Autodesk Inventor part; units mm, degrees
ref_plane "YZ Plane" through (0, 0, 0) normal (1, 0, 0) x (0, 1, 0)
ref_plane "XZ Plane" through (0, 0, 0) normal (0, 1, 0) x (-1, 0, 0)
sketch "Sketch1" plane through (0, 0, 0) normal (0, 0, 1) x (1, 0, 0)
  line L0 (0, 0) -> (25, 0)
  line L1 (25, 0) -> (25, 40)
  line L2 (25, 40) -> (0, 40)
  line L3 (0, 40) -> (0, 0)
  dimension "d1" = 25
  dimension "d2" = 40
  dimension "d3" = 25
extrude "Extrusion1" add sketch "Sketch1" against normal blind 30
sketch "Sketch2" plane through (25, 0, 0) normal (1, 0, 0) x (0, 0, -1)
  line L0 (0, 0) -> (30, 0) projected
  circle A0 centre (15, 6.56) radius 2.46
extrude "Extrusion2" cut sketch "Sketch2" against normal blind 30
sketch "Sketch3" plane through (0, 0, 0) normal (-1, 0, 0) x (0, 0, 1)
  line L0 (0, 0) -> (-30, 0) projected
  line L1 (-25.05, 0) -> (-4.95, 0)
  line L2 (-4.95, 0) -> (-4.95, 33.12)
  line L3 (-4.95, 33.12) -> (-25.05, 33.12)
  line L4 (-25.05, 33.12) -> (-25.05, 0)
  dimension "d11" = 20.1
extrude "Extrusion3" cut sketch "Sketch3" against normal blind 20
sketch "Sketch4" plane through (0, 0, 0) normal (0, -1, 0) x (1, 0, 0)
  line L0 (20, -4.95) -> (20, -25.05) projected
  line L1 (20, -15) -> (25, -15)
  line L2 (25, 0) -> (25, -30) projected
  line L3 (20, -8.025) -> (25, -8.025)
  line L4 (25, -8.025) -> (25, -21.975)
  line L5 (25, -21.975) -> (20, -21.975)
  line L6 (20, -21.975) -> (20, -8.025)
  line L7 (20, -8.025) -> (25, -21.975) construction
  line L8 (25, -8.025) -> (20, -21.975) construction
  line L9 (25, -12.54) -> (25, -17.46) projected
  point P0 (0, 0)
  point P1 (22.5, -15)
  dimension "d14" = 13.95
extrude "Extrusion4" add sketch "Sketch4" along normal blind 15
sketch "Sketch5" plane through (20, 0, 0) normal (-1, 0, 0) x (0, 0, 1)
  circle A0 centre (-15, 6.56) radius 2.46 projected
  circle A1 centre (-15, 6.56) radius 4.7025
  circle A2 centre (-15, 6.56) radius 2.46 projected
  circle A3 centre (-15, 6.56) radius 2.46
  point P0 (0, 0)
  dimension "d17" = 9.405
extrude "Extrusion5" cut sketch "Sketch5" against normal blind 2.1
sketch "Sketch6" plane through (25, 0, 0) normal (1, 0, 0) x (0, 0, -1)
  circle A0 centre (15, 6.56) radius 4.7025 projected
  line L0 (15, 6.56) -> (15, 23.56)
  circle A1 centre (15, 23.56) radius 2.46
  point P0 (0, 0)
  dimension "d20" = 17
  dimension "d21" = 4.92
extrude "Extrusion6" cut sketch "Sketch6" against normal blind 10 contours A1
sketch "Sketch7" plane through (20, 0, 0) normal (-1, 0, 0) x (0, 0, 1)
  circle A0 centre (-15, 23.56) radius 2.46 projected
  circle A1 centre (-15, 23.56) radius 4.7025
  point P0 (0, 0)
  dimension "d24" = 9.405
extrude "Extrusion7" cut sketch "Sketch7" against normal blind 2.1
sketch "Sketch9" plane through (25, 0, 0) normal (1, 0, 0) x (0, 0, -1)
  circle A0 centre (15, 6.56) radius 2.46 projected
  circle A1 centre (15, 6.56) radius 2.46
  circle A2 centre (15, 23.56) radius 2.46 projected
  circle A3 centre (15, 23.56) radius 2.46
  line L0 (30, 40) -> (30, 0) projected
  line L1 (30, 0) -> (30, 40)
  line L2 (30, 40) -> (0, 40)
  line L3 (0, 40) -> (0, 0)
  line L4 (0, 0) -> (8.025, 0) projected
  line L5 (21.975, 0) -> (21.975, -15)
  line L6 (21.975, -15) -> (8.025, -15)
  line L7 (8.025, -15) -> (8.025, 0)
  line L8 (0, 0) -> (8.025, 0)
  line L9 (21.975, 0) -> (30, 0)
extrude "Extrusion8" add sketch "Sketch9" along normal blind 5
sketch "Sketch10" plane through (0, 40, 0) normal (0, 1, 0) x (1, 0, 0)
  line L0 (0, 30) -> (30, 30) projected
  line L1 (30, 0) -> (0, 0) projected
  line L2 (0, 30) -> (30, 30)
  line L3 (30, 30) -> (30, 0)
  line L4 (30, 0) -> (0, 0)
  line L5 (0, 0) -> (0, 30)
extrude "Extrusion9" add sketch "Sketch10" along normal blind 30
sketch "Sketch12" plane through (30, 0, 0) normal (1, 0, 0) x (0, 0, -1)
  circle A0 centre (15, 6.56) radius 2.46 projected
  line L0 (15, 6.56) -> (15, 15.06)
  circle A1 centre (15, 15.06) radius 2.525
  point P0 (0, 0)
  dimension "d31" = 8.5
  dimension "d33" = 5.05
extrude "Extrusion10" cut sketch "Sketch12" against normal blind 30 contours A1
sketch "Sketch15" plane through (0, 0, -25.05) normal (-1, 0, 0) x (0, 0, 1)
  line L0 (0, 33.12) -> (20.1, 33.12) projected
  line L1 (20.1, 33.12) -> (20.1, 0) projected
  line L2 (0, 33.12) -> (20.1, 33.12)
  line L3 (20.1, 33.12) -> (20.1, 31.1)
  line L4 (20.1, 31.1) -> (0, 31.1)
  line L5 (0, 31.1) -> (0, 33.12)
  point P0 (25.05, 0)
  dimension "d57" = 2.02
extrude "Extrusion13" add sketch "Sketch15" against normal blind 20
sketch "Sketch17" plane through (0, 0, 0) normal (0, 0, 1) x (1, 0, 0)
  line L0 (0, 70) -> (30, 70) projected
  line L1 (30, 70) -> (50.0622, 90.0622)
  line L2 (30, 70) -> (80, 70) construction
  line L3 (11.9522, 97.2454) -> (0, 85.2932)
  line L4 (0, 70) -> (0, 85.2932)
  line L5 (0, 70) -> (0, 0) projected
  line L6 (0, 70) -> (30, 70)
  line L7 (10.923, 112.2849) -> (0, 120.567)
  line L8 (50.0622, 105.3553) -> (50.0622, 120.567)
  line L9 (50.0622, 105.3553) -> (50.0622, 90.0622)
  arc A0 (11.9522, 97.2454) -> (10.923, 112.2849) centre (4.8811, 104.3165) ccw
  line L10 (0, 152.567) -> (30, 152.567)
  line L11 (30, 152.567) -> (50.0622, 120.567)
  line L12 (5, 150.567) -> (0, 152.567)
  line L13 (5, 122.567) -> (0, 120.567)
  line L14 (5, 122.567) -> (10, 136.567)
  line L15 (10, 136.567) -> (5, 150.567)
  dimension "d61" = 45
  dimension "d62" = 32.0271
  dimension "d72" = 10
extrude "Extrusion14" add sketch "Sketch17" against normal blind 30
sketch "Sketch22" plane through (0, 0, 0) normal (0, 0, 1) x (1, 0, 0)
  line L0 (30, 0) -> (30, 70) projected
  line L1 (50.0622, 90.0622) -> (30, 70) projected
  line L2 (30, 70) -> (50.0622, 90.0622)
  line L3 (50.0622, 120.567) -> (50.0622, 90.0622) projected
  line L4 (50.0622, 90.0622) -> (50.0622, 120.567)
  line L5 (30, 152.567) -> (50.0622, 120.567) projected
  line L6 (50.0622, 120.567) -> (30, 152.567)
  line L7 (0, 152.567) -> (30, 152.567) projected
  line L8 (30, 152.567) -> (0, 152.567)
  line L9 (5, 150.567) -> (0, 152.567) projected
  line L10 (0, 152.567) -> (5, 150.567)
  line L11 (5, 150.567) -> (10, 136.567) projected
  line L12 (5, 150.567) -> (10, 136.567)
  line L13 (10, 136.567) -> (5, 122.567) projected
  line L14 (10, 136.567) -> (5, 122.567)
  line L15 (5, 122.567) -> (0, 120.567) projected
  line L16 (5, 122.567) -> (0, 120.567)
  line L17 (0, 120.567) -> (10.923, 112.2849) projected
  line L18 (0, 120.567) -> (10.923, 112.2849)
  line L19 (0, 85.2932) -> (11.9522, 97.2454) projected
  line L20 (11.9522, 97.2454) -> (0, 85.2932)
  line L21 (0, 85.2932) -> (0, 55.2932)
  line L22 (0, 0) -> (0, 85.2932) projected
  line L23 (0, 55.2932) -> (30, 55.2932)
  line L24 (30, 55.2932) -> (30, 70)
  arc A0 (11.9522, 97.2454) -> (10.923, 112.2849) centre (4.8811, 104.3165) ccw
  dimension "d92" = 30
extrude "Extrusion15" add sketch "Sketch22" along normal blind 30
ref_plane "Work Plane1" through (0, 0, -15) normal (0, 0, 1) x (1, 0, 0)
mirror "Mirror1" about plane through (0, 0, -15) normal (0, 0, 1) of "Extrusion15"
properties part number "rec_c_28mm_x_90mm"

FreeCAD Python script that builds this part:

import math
import FreeCAD as App
import Part
import Sketcher
Q = App.Units.Quantity


def add_polygon(sketch, points):
    """Adds a closed chain of lines whose ends are joined by coincident constraints."""
    first, n = sketch.GeometryCount, len(points)
    for a, b in zip(points, points[1:] + points[:1]):
        sketch.addGeometry(Part.LineSegment(App.Vector(*a, 0), App.Vector(*b, 0)), False)
    for i in range(n):
        sketch.addConstraint(Sketcher.Constraint("Coincident", first + i, 2, first + (i + 1) % n, 1))

doc = App.newDocument("Part")
body = doc.addObject("PartDesign::Body", "Body")

# Sketch on XY plane
sketch1 = body.newObject("Sketcher::SketchObject", "Sketch")
sketch1.AttachmentSupport = (doc.getObject("XY_Plane"), [""])
sketch1.MapMode = "FlatFace"
add_polygon(sketch1, [(0, 40), (0, 0), (25, 0), (25, 40)])  # lines 0-3
sketch1.addConstraint([
    Sketcher.Constraint("Vertical", 0),
    Sketcher.Constraint("Horizontal", 1),
    Sketcher.Constraint("Vertical", 2),
    Sketcher.Constraint("Horizontal", 3),
    Sketcher.Constraint("Coincident", 0, 2, -1, 1),
    Sketcher.Constraint("DistanceX", 1, 1, 1, 2, 25.0),
    Sketcher.Constraint("DistanceY", 0, 2, 0, 1, 40.0),
])
pad1 = body.newObject("PartDesign::Pad", "Pad")
pad1.Profile = sketch1
pad1.Length = 30
pad1.Reversed = True

# Sketch on YZ plane
sketch2 = body.newObject("Sketcher::SketchObject", "Sketch001")
sketch2.AttachmentSupport = (doc.getObject("YZ_Plane"), [""])
sketch2.MapMode = "FlatFace"
sketch2.AttachmentOffset = App.Placement(App.Vector(0, 0, 25), App.Rotation())
sketch2.addGeometry(Part.Circle(App.Vector(6.6, -15, 0), App.Vector(0, 0, 1), 2.5), False)
sketch2.addConstraint([
    Sketcher.Constraint("Diameter", 0, 4.92),
    Sketcher.Constraint("DistanceY", 0, 3, -1, 1, 15.0),
    Sketcher.Constraint("DistanceX", -1, 1, 0, 3, 6.56),
])
pocket1 = body.newObject("PartDesign::Pocket", "Pocket")
pocket1.Profile = sketch2
pocket1.Length = 30

# Sketch on YZ plane
sketch3 = body.newObject("Sketcher::SketchObject", "Sketch002")
sketch3.AttachmentSupport = (doc.getObject("YZ_Plane"), [""])
sketch3.MapMode = "FlatFace"
add_polygon(sketch3, [(0, -25), (0, -5), (33, -5), (33, -25)])  # lines 0-3
sketch3.addConstraint([
    Sketcher.Constraint("Vertical", 0),
    Sketcher.Constraint("Horizontal", 1),
    Sketcher.Constraint("Vertical", 2),
    Sketcher.Constraint("Horizontal", 3),
    Sketcher.Constraint("PointOnObject", 0, 2, -2),
    Sketcher.Constraint("DistanceY", 0, 1, 0, 2, 20.1),
    Sketcher.Constraint("DistanceX", 1, 1, 1, 2, 33.12),
    Sketcher.Constraint("DistanceY", 0, 2, -1, 1, 4.95),
])
pocket2 = body.newObject("PartDesign::Pocket", "Pocket001")
pocket2.Profile = sketch3
pocket2.Length = 20
pocket2.Reversed = True

# Sketch on XZ plane
sketch4 = body.newObject("Sketcher::SketchObject", "Sketch003")
sketch4.AttachmentSupport = (doc.getObject("XZ_Plane"), [""])
sketch4.MapMode = "FlatFace"
add_polygon(sketch4, [(25, -8), (20, -8), (20, -22), (25, -22)])  # lines 0-3
sketch4.addConstraint([
    Sketcher.Constraint("Horizontal", 0),
    Sketcher.Constraint("Vertical", 1),
    Sketcher.Constraint("Horizontal", 2),
    Sketcher.Constraint("Vertical", 3),
    Sketcher.Constraint("DistanceY", 1, 2, 1, 1, 13.95),
    Sketcher.Constraint("DistanceX", 0, 2, 0, 1, 5.0),
    Sketcher.Constraint("DistanceX", -1, 1, 0, 2, 20.0),
    Sketcher.Constraint("DistanceY", 0, 2, -1, 1, 8.025),
])
pad2 = body.newObject("PartDesign::Pad", "Pad001")
pad2.Profile = sketch4
pad2.Length = 15

# Sketch on YZ plane
sketch5 = body.newObject("Sketcher::SketchObject", "Sketch004")
sketch5.AttachmentSupport = (doc.getObject("YZ_Plane"), [""])
sketch5.MapMode = "FlatFace"
sketch5.AttachmentOffset = App.Placement(App.Vector(0, 0, 20), App.Rotation())
sketch5.addGeometry([
    Part.Circle(App.Vector(6.6, -15, 0), App.Vector(0, 0, 1), 4.7),
    Part.Circle(App.Vector(6.6, -15, 0), App.Vector(0, 0, 1), 2.5),
], False)
sketch5.addConstraint([
    Sketcher.Constraint("Coincident", 1, 3, 0, 3),
    Sketcher.Constraint("Diameter", 0, 9.405),
    Sketcher.Constraint("Diameter", 1, 4.92),
    Sketcher.Constraint("DistanceY", 0, 3, -1, 1, 15.0),
    Sketcher.Constraint("DistanceX", -1, 1, 0, 3, 6.56),
])
pocket3 = body.newObject("PartDesign::Pocket", "Pocket002")
pocket3.Profile = sketch5
pocket3.Length = 2.1
pocket3.Reversed = True

# Sketch on YZ plane
sketch6 = body.newObject("Sketcher::SketchObject", "Sketch005")
sketch6.AttachmentSupport = (doc.getObject("YZ_Plane"), [""])
sketch6.MapMode = "FlatFace"
sketch6.AttachmentOffset = App.Placement(App.Vector(0, 0, 25), App.Rotation())
sketch6.addGeometry(Part.Circle(App.Vector(23.6, -15, 0), App.Vector(0, 0, 1), 2.5), False)
sketch6.addConstraint([
    Sketcher.Constraint("Diameter", 0, 4.92),
    Sketcher.Constraint("DistanceY", 0, 3, -1, 1, 15.0),
    Sketcher.Constraint("DistanceX", -1, 1, 0, 3, 23.56),
])
pocket4 = body.newObject("PartDesign::Pocket", "Pocket003")
pocket4.Profile = sketch6
pocket4.Length = 10

# Sketch on YZ plane
sketch7 = body.newObject("Sketcher::SketchObject", "Sketch006")
sketch7.AttachmentSupport = (doc.getObject("YZ_Plane"), [""])
sketch7.MapMode = "FlatFace"
sketch7.AttachmentOffset = App.Placement(App.Vector(0, 0, 20), App.Rotation())
sketch7.addGeometry([
    Part.Circle(App.Vector(23.6, -15, 0), App.Vector(0, 0, 1), 4.7),
    Part.Circle(App.Vector(23.6, -15, 0), App.Vector(0, 0, 1), 2.5),
], False)
sketch7.addConstraint([
    Sketcher.Constraint("Coincident", 1, 3, 0, 3),
    Sketcher.Constraint("Diameter", 0, 9.405),
    Sketcher.Constraint("Diameter", 1, 4.92),
    Sketcher.Constraint("DistanceY", 0, 3, -1, 1, 15.0),
    Sketcher.Constraint("DistanceX", -1, 1, 0, 3, 23.56),
])
pocket5 = body.newObject("PartDesign::Pocket", "Pocket004")
pocket5.Profile = sketch7
pocket5.Length = 2.1
pocket5.Reversed = True

# Sketch on YZ plane
sketch8 = body.newObject("Sketcher::SketchObject", "Sketch007")
sketch8.AttachmentSupport = (doc.getObject("YZ_Plane"), [""])
sketch8.MapMode = "FlatFace"
sketch8.AttachmentOffset = App.Placement(App.Vector(0, 0, 25), App.Rotation())
add_polygon(sketch8, [(0, -30), (40, -30), (40, 0), (0, 0), (0, -8), (-15, -8), (-15, -22), (0, -22)])  # lines 0-7
sketch8.addGeometry(Part.Circle(App.Vector(6.6, -15, 0), App.Vector(0, 0, 1), 2.5), False)  # 8
sketch8.addGeometry(Part.Circle(App.Vector(23.6, -15, 0), App.Vector(0, 0, 1), 2.5), False)  # 9
sketch8.addConstraint([
    Sketcher.Constraint("Horizontal", 0),
    Sketcher.Constraint("Vertical", 1),
    Sketcher.Constraint("Horizontal", 2),
    Sketcher.Constraint("Vertical", 3),
    Sketcher.Constraint("Horizontal", 4),
    Sketcher.Constraint("Vertical", 5),
    Sketcher.Constraint("Horizontal", 6),
    Sketcher.Constraint("Vertical", 7),
    Sketcher.Constraint("Coincident", 2, 2, -1, 1),
    Sketcher.Constraint("Equal", 8, 9),
    Sketcher.Constraint("PointOnObject", 6, 2, -2),
    Sketcher.Constraint("Horizontal", 8, 3, 9, 3),
    Sketcher.Constraint("Equal", 3, 7),
    Sketcher.Constraint("Diameter", 8, 4.92),
    Sketcher.Constraint("DistanceX", 0, 1, 0, 2, 40.0),
    Sketcher.Constraint("DistanceX", 4, 2, 4, 1, 15.0),
    Sketcher.Constraint("DistanceY", 1, 1, 1, 2, 30.0),
    Sketcher.Constraint("DistanceY", 8, 3, -1, 1, 15.0),
    Sketcher.Constraint("DistanceX", 8, 3, 9, 3, 17.0),
    Sketcher.Constraint("DistanceY", 5, 2, 5, 1, 13.95),
    Sketcher.Constraint("DistanceX", -1, 1, 8, 3, 6.56),
])
pad3 = body.newObject("PartDesign::Pad", "Pad002")
pad3.Profile = sketch8
pad3.Length = 5

# Sketch on XZ plane
sketch9 = body.newObject("Sketcher::SketchObject", "Sketch008")
sketch9.AttachmentSupport = (doc.getObject("XZ_Plane"), [""])
sketch9.MapMode = "FlatFace"
sketch9.AttachmentOffset = App.Placement(App.Vector(0, 0, -40), App.Rotation())
add_polygon(sketch9, [(30, -30), (0, -30), (0, 0), (30, 0)])  # lines 0-3
sketch9.addConstraint([
    Sketcher.Constraint("Horizontal", 0),
    Sketcher.Constraint("Vertical", 1),
    Sketcher.Constraint("Horizontal", 2),
    Sketcher.Constraint("Vertical", 3),
    Sketcher.Constraint("Coincident", 1, 2, -1, 1),
    Sketcher.Constraint("Equal", 2, 1),
    Sketcher.Constraint("DistanceX", 0, 2, 0, 1, 30.0),
])
pad4 = body.newObject("PartDesign::Pad", "Pad003")
pad4.Profile = sketch9
pad4.Length = 30
pad4.Reversed = True

# Sketch on YZ plane
sketch10 = body.newObject("Sketcher::SketchObject", "Sketch009")
sketch10.AttachmentSupport = (doc.getObject("YZ_Plane"), [""])
sketch10.MapMode = "FlatFace"
sketch10.AttachmentOffset = App.Placement(App.Vector(0, 0, 30), App.Rotation())
sketch10.addGeometry(Part.Circle(App.Vector(15.1, -15, 0), App.Vector(0, 0, 1), 2.5), False)
sketch10.addConstraint([
    Sketcher.Constraint("Diameter", 0, 5.05),
    Sketcher.Constraint("DistanceY", 0, 3, -1, 1, 15.0),
    Sketcher.Constraint("DistanceX", -1, 1, 0, 3, 15.06),
])
pocket6 = body.newObject("PartDesign::Pocket", "Pocket005")
pocket6.Profile = sketch10
pocket6.Length = 30

# Sketch on YZ plane
sketch11 = body.newObject("Sketcher::SketchObject", "Sketch010")
sketch11.AttachmentSupport = (doc.getObject("YZ_Plane"), [""])
sketch11.MapMode = "FlatFace"
add_polygon(sketch11, [(33.1, -5), (33.1, -25.1), (31.1, -25.1), (31.1, -5)])  # lines 0-3
sketch11.addConstraint([
    Sketcher.Constraint("Vertical", 0),
    Sketcher.Constraint("Horizontal", 1),
    Sketcher.Constraint("Vertical", 2),
    Sketcher.Constraint("Horizontal", 3),
    Sketcher.Constraint("DistanceX", 1, 2, 1, 1, 2.02),
    Sketcher.Constraint("DistanceY", 0, 2, 0, 1, 20.1),
    Sketcher.Constraint("DistanceX", -1, 1, 1, 2, 31.1),
    Sketcher.Constraint("DistanceY", 0, 2, -1, 1, 25.05),
])
pad5 = body.newObject("PartDesign::Pad", "Pad004")
pad5.Profile = sketch11
pad5.Length = 20

# Sketch on XY plane
sketch12 = body.newObject("Sketcher::SketchObject", "Sketch011")
sketch12.AttachmentSupport = (doc.getObject("XY_Plane"), [""])
sketch12.MapMode = "FlatFace"
sketch12.addGeometry([
    Part.LineSegment(App.Vector(0, 85, 0), App.Vector(0, 70, 0)),  # 0
    Part.LineSegment(App.Vector(0, 70, 0), App.Vector(30, 70, 0)),  # 1
    Part.LineSegment(App.Vector(30, 70, 0), App.Vector(50, 90, 0)),  # 2
    Part.LineSegment(App.Vector(50, 90, 0), App.Vector(50, 121, 0)),  # 3
    Part.LineSegment(App.Vector(50, 121, 0), App.Vector(30, 153, 0)),  # 4
    Part.LineSegment(App.Vector(30, 153, 0), App.Vector(0, 153, 0)),  # 5
    Part.LineSegment(App.Vector(0, 153, 0), App.Vector(5, 151, 0)),  # 6
    Part.LineSegment(App.Vector(5, 151, 0), App.Vector(10, 137, 0)),  # 7
    Part.LineSegment(App.Vector(10, 137, 0), App.Vector(5, 123, 0)),  # 8
    Part.LineSegment(App.Vector(5, 123, 0), App.Vector(0, 121, 0)),  # 9
    Part.LineSegment(App.Vector(0, 121, 0), App.Vector(11, 112, 0)),  # 10
    Part.ArcOfCircle(Part.Circle(App.Vector(5, 104, 0), App.Vector(0, 0, 1), 10), math.radians(-45), math.radians(53)),  # 11
    Part.LineSegment(App.Vector(12, 97, 0), App.Vector(0, 85, 0)),  # 12
], False)
sketch12.addConstraint([
    Sketcher.Constraint("Coincident", 0, 2, 1, 1),
    Sketcher.Constraint("Coincident", 1, 2, 2, 1),
    Sketcher.Constraint("Coincident", 2, 2, 3, 1),
    Sketcher.Constraint("Coincident", 3, 2, 4, 1),
    Sketcher.Constraint("Coincident", 4, 2, 5, 1),
    Sketcher.Constraint("Coincident", 5, 2, 6, 1),
    Sketcher.Constraint("Coincident", 6, 2, 7, 1),
    Sketcher.Constraint("Coincident", 7, 2, 8, 1),
    Sketcher.Constraint("Coincident", 8, 2, 9, 1),
    Sketcher.Constraint("Coincident", 9, 2, 10, 1),
    Sketcher.Constraint("Tangent", 10, 2, 11, 2),
    Sketcher.Constraint("Tangent", 11, 1, 12, 1),
    Sketcher.Constraint("Coincident", 12, 2, 0, 1),
    Sketcher.Constraint("Vertical", 0),
    Sketcher.Constraint("Horizontal", 1),
    Sketcher.Constraint("Vertical", 3),
    Sketcher.Constraint("Horizontal", 5),
    Sketcher.Constraint("PointOnObject", 0, 2, -2),
    Sketcher.Constraint("PointOnObject", 5, 2, -2),
    Sketcher.Constraint("PointOnObject", 9, 2, -2),
    Sketcher.Constraint("Parallel", 2, 12),
    Sketcher.Constraint("Horizontal", 3, 2, 9, 2),
    Sketcher.Constraint("Vertical", 1, 2, 4, 2),
    Sketcher.Constraint("Vertical", 6, 2, 8, 2),
    Sketcher.Constraint("Equal", 7, 8),
    Sketcher.Constraint("Equal", 6, 9),
    Sketcher.Constraint("Radius", 11, 10.0),
    Sketcher.Constraint("Angle", 2, Q("45 deg")),
    Sketcher.Constraint("DistanceX", -1, 1, 7, 2, 10.0),
    Sketcher.Constraint("DistanceX", 1, 1, 1, 2, 30.0),
    Sketcher.Constraint("DistanceY", -1, 1, 0, 2, 70.0),
    Sketcher.Constraint("DistanceX", -1, 1, 6, 2, 5.0),
    Sketcher.Constraint("DistanceY", 3, 2, 4, 2, 32.0),
    Sketcher.Constraint("DistanceY", 6, 2, 5, 2, 2.0),
    Sketcher.Constraint("Angle", 10, Q("-37.1703 deg")),
    Sketcher.Constraint("Distance", 4, 37.769),
    Sketcher.Constraint("Distance", 12, 16.903),
    Sketcher.Constraint("DistanceY", 0, 2, 0, 1, 15.2932),
])
pad6 = body.newObject("PartDesign::Pad", "Pad005")
pad6.Profile = sketch12
pad6.Length = 30
pad6.Reversed = True

# Sketch on XY plane
sketch13 = body.newObject("Sketcher::SketchObject", "Sketch012")
sketch13.AttachmentSupport = (doc.getObject("XY_Plane"), [""])
sketch13.MapMode = "FlatFace"
sketch13.addGeometry([
    Part.LineSegment(App.Vector(0, 55, 0), App.Vector(30, 55, 0)),  # 0
    Part.LineSegment(App.Vector(30, 55, 0), App.Vector(30, 70, 0)),  # 1
    Part.LineSegment(App.Vector(30, 70, 0), App.Vector(50, 90, 0)),  # 2
    Part.LineSegment(App.Vector(50, 90, 0), App.Vector(50, 121, 0)),  # 3
    Part.LineSegment(App.Vector(50, 121, 0), App.Vector(30, 153, 0)),  # 4
    Part.LineSegment(App.Vector(30, 153, 0), App.Vector(0, 153, 0)),  # 5
    Part.LineSegment(App.Vector(0, 153, 0), App.Vector(5, 151, 0)),  # 6
    Part.LineSegment(App.Vector(5, 151, 0), App.Vector(10, 137, 0)),  # 7
    Part.LineSegment(App.Vector(10, 137, 0), App.Vector(5, 123, 0)),  # 8
    Part.LineSegment(App.Vector(5, 123, 0), App.Vector(0, 121, 0)),  # 9
    Part.LineSegment(App.Vector(0, 121, 0), App.Vector(11, 112, 0)),  # 10
    Part.ArcOfCircle(Part.Circle(App.Vector(5, 104, 0), App.Vector(0, 0, 1), 10), math.radians(-45), math.radians(53)),  # 11
    Part.LineSegment(App.Vector(12, 97, 0), App.Vector(0, 85, 0)),  # 12
    Part.LineSegment(App.Vector(0, 85, 0), App.Vector(0, 55, 0)),  # 13
], False)
sketch13.addConstraint([
    Sketcher.Constraint("Coincident", 0, 2, 1, 1),
    Sketcher.Constraint("Coincident", 1, 2, 2, 1),
    Sketcher.Constraint("Coincident", 2, 2, 3, 1),
    Sketcher.Constraint("Coincident", 3, 2, 4, 1),
    Sketcher.Constraint("Coincident", 4, 2, 5, 1),
    Sketcher.Constraint("Coincident", 5, 2, 6, 1),
    Sketcher.Constraint("Coincident", 6, 2, 7, 1),
    Sketcher.Constraint("Coincident", 7, 2, 8, 1),
    Sketcher.Constraint("Coincident", 8, 2, 9, 1),
    Sketcher.Constraint("Coincident", 9, 2, 10, 1),
    Sketcher.Constraint("Tangent", 10, 2, 11, 2),
    Sketcher.Constraint("Tangent", 11, 1, 12, 1),
    Sketcher.Constraint("Coincident", 12, 2, 13, 1),
    Sketcher.Constraint("Coincident", 13, 2, 0, 1),
    Sketcher.Constraint("Horizontal", 0),
    Sketcher.Constraint("Vertical", 1),
    Sketcher.Constraint("Vertical", 3),
    Sketcher.Constraint("Horizontal", 5),
    Sketcher.Constraint("Vertical", 13),
    Sketcher.Constraint("PointOnObject", 5, 2, -2),
    Sketcher.Constraint("PointOnObject", 9, 2, -2),
    Sketcher.Constraint("PointOnObject", 12, 2, -2),
    Sketcher.Constraint("Parallel", 2, 12),
    Sketcher.Constraint("Horizontal", 3, 2, 9, 2),
    Sketcher.Constraint("Vertical", 1, 2, 4, 2),
    Sketcher.Constraint("Vertical", 6, 2, 8, 2),
    Sketcher.Constraint("Equal", 5, 13),
    Sketcher.Constraint("Equal", 7, 8),
    Sketcher.Constraint("Equal", 6, 9),
    Sketcher.Constraint("DistanceX", 0, 1, 0, 2, 30.0),
    Sketcher.Constraint("Radius", 11, 10.0),
    Sketcher.Constraint("DistanceY", 3, 2, 6, 2, 30.0),
    Sketcher.Constraint("Angle", 2, Q("45 deg")),
    Sketcher.Constraint("DistanceY", -1, 1, 1, 2, 70.0),
    Sketcher.Constraint("DistanceX", -1, 1, 6, 2, 5.0),
    Sketcher.Constraint("DistanceX", -1, 1, 7, 2, 10.0),
    Sketcher.Constraint("DistanceY", 3, 2, 4, 2, 32.0),
    Sketcher.Constraint("Angle", 10, Q("-37.1703 deg")),
    Sketcher.Constraint("Distance", 4, 37.769),
    Sketcher.Constraint("Distance", 12, 16.903),
    Sketcher.Constraint("DistanceY", 1, 1, 1, 2, 14.7068),
])
pad7 = body.newObject("PartDesign::Pad", "Pad006")
pad7.Profile = sketch13
pad7.Length = 30
doc.recompute()

datumplane = body.newObject("PartDesign::Plane", "DatumPlane")
datumplane.AttachmentSupport = (doc.getObject("XY_Plane"), [""])
datumplane.MapMode = "FlatFace"
datumplane.AttachmentOffset = App.Placement(App.Vector(0, 0, -15), App.Rotation())
mirrored = body.newObject("PartDesign::Mirrored", "Mirrored")
mirrored.Originals = [pad7]
mirrored.MirrorPlane = (datumplane, [""])
body.Tip = mirrored

doc.recompute()
